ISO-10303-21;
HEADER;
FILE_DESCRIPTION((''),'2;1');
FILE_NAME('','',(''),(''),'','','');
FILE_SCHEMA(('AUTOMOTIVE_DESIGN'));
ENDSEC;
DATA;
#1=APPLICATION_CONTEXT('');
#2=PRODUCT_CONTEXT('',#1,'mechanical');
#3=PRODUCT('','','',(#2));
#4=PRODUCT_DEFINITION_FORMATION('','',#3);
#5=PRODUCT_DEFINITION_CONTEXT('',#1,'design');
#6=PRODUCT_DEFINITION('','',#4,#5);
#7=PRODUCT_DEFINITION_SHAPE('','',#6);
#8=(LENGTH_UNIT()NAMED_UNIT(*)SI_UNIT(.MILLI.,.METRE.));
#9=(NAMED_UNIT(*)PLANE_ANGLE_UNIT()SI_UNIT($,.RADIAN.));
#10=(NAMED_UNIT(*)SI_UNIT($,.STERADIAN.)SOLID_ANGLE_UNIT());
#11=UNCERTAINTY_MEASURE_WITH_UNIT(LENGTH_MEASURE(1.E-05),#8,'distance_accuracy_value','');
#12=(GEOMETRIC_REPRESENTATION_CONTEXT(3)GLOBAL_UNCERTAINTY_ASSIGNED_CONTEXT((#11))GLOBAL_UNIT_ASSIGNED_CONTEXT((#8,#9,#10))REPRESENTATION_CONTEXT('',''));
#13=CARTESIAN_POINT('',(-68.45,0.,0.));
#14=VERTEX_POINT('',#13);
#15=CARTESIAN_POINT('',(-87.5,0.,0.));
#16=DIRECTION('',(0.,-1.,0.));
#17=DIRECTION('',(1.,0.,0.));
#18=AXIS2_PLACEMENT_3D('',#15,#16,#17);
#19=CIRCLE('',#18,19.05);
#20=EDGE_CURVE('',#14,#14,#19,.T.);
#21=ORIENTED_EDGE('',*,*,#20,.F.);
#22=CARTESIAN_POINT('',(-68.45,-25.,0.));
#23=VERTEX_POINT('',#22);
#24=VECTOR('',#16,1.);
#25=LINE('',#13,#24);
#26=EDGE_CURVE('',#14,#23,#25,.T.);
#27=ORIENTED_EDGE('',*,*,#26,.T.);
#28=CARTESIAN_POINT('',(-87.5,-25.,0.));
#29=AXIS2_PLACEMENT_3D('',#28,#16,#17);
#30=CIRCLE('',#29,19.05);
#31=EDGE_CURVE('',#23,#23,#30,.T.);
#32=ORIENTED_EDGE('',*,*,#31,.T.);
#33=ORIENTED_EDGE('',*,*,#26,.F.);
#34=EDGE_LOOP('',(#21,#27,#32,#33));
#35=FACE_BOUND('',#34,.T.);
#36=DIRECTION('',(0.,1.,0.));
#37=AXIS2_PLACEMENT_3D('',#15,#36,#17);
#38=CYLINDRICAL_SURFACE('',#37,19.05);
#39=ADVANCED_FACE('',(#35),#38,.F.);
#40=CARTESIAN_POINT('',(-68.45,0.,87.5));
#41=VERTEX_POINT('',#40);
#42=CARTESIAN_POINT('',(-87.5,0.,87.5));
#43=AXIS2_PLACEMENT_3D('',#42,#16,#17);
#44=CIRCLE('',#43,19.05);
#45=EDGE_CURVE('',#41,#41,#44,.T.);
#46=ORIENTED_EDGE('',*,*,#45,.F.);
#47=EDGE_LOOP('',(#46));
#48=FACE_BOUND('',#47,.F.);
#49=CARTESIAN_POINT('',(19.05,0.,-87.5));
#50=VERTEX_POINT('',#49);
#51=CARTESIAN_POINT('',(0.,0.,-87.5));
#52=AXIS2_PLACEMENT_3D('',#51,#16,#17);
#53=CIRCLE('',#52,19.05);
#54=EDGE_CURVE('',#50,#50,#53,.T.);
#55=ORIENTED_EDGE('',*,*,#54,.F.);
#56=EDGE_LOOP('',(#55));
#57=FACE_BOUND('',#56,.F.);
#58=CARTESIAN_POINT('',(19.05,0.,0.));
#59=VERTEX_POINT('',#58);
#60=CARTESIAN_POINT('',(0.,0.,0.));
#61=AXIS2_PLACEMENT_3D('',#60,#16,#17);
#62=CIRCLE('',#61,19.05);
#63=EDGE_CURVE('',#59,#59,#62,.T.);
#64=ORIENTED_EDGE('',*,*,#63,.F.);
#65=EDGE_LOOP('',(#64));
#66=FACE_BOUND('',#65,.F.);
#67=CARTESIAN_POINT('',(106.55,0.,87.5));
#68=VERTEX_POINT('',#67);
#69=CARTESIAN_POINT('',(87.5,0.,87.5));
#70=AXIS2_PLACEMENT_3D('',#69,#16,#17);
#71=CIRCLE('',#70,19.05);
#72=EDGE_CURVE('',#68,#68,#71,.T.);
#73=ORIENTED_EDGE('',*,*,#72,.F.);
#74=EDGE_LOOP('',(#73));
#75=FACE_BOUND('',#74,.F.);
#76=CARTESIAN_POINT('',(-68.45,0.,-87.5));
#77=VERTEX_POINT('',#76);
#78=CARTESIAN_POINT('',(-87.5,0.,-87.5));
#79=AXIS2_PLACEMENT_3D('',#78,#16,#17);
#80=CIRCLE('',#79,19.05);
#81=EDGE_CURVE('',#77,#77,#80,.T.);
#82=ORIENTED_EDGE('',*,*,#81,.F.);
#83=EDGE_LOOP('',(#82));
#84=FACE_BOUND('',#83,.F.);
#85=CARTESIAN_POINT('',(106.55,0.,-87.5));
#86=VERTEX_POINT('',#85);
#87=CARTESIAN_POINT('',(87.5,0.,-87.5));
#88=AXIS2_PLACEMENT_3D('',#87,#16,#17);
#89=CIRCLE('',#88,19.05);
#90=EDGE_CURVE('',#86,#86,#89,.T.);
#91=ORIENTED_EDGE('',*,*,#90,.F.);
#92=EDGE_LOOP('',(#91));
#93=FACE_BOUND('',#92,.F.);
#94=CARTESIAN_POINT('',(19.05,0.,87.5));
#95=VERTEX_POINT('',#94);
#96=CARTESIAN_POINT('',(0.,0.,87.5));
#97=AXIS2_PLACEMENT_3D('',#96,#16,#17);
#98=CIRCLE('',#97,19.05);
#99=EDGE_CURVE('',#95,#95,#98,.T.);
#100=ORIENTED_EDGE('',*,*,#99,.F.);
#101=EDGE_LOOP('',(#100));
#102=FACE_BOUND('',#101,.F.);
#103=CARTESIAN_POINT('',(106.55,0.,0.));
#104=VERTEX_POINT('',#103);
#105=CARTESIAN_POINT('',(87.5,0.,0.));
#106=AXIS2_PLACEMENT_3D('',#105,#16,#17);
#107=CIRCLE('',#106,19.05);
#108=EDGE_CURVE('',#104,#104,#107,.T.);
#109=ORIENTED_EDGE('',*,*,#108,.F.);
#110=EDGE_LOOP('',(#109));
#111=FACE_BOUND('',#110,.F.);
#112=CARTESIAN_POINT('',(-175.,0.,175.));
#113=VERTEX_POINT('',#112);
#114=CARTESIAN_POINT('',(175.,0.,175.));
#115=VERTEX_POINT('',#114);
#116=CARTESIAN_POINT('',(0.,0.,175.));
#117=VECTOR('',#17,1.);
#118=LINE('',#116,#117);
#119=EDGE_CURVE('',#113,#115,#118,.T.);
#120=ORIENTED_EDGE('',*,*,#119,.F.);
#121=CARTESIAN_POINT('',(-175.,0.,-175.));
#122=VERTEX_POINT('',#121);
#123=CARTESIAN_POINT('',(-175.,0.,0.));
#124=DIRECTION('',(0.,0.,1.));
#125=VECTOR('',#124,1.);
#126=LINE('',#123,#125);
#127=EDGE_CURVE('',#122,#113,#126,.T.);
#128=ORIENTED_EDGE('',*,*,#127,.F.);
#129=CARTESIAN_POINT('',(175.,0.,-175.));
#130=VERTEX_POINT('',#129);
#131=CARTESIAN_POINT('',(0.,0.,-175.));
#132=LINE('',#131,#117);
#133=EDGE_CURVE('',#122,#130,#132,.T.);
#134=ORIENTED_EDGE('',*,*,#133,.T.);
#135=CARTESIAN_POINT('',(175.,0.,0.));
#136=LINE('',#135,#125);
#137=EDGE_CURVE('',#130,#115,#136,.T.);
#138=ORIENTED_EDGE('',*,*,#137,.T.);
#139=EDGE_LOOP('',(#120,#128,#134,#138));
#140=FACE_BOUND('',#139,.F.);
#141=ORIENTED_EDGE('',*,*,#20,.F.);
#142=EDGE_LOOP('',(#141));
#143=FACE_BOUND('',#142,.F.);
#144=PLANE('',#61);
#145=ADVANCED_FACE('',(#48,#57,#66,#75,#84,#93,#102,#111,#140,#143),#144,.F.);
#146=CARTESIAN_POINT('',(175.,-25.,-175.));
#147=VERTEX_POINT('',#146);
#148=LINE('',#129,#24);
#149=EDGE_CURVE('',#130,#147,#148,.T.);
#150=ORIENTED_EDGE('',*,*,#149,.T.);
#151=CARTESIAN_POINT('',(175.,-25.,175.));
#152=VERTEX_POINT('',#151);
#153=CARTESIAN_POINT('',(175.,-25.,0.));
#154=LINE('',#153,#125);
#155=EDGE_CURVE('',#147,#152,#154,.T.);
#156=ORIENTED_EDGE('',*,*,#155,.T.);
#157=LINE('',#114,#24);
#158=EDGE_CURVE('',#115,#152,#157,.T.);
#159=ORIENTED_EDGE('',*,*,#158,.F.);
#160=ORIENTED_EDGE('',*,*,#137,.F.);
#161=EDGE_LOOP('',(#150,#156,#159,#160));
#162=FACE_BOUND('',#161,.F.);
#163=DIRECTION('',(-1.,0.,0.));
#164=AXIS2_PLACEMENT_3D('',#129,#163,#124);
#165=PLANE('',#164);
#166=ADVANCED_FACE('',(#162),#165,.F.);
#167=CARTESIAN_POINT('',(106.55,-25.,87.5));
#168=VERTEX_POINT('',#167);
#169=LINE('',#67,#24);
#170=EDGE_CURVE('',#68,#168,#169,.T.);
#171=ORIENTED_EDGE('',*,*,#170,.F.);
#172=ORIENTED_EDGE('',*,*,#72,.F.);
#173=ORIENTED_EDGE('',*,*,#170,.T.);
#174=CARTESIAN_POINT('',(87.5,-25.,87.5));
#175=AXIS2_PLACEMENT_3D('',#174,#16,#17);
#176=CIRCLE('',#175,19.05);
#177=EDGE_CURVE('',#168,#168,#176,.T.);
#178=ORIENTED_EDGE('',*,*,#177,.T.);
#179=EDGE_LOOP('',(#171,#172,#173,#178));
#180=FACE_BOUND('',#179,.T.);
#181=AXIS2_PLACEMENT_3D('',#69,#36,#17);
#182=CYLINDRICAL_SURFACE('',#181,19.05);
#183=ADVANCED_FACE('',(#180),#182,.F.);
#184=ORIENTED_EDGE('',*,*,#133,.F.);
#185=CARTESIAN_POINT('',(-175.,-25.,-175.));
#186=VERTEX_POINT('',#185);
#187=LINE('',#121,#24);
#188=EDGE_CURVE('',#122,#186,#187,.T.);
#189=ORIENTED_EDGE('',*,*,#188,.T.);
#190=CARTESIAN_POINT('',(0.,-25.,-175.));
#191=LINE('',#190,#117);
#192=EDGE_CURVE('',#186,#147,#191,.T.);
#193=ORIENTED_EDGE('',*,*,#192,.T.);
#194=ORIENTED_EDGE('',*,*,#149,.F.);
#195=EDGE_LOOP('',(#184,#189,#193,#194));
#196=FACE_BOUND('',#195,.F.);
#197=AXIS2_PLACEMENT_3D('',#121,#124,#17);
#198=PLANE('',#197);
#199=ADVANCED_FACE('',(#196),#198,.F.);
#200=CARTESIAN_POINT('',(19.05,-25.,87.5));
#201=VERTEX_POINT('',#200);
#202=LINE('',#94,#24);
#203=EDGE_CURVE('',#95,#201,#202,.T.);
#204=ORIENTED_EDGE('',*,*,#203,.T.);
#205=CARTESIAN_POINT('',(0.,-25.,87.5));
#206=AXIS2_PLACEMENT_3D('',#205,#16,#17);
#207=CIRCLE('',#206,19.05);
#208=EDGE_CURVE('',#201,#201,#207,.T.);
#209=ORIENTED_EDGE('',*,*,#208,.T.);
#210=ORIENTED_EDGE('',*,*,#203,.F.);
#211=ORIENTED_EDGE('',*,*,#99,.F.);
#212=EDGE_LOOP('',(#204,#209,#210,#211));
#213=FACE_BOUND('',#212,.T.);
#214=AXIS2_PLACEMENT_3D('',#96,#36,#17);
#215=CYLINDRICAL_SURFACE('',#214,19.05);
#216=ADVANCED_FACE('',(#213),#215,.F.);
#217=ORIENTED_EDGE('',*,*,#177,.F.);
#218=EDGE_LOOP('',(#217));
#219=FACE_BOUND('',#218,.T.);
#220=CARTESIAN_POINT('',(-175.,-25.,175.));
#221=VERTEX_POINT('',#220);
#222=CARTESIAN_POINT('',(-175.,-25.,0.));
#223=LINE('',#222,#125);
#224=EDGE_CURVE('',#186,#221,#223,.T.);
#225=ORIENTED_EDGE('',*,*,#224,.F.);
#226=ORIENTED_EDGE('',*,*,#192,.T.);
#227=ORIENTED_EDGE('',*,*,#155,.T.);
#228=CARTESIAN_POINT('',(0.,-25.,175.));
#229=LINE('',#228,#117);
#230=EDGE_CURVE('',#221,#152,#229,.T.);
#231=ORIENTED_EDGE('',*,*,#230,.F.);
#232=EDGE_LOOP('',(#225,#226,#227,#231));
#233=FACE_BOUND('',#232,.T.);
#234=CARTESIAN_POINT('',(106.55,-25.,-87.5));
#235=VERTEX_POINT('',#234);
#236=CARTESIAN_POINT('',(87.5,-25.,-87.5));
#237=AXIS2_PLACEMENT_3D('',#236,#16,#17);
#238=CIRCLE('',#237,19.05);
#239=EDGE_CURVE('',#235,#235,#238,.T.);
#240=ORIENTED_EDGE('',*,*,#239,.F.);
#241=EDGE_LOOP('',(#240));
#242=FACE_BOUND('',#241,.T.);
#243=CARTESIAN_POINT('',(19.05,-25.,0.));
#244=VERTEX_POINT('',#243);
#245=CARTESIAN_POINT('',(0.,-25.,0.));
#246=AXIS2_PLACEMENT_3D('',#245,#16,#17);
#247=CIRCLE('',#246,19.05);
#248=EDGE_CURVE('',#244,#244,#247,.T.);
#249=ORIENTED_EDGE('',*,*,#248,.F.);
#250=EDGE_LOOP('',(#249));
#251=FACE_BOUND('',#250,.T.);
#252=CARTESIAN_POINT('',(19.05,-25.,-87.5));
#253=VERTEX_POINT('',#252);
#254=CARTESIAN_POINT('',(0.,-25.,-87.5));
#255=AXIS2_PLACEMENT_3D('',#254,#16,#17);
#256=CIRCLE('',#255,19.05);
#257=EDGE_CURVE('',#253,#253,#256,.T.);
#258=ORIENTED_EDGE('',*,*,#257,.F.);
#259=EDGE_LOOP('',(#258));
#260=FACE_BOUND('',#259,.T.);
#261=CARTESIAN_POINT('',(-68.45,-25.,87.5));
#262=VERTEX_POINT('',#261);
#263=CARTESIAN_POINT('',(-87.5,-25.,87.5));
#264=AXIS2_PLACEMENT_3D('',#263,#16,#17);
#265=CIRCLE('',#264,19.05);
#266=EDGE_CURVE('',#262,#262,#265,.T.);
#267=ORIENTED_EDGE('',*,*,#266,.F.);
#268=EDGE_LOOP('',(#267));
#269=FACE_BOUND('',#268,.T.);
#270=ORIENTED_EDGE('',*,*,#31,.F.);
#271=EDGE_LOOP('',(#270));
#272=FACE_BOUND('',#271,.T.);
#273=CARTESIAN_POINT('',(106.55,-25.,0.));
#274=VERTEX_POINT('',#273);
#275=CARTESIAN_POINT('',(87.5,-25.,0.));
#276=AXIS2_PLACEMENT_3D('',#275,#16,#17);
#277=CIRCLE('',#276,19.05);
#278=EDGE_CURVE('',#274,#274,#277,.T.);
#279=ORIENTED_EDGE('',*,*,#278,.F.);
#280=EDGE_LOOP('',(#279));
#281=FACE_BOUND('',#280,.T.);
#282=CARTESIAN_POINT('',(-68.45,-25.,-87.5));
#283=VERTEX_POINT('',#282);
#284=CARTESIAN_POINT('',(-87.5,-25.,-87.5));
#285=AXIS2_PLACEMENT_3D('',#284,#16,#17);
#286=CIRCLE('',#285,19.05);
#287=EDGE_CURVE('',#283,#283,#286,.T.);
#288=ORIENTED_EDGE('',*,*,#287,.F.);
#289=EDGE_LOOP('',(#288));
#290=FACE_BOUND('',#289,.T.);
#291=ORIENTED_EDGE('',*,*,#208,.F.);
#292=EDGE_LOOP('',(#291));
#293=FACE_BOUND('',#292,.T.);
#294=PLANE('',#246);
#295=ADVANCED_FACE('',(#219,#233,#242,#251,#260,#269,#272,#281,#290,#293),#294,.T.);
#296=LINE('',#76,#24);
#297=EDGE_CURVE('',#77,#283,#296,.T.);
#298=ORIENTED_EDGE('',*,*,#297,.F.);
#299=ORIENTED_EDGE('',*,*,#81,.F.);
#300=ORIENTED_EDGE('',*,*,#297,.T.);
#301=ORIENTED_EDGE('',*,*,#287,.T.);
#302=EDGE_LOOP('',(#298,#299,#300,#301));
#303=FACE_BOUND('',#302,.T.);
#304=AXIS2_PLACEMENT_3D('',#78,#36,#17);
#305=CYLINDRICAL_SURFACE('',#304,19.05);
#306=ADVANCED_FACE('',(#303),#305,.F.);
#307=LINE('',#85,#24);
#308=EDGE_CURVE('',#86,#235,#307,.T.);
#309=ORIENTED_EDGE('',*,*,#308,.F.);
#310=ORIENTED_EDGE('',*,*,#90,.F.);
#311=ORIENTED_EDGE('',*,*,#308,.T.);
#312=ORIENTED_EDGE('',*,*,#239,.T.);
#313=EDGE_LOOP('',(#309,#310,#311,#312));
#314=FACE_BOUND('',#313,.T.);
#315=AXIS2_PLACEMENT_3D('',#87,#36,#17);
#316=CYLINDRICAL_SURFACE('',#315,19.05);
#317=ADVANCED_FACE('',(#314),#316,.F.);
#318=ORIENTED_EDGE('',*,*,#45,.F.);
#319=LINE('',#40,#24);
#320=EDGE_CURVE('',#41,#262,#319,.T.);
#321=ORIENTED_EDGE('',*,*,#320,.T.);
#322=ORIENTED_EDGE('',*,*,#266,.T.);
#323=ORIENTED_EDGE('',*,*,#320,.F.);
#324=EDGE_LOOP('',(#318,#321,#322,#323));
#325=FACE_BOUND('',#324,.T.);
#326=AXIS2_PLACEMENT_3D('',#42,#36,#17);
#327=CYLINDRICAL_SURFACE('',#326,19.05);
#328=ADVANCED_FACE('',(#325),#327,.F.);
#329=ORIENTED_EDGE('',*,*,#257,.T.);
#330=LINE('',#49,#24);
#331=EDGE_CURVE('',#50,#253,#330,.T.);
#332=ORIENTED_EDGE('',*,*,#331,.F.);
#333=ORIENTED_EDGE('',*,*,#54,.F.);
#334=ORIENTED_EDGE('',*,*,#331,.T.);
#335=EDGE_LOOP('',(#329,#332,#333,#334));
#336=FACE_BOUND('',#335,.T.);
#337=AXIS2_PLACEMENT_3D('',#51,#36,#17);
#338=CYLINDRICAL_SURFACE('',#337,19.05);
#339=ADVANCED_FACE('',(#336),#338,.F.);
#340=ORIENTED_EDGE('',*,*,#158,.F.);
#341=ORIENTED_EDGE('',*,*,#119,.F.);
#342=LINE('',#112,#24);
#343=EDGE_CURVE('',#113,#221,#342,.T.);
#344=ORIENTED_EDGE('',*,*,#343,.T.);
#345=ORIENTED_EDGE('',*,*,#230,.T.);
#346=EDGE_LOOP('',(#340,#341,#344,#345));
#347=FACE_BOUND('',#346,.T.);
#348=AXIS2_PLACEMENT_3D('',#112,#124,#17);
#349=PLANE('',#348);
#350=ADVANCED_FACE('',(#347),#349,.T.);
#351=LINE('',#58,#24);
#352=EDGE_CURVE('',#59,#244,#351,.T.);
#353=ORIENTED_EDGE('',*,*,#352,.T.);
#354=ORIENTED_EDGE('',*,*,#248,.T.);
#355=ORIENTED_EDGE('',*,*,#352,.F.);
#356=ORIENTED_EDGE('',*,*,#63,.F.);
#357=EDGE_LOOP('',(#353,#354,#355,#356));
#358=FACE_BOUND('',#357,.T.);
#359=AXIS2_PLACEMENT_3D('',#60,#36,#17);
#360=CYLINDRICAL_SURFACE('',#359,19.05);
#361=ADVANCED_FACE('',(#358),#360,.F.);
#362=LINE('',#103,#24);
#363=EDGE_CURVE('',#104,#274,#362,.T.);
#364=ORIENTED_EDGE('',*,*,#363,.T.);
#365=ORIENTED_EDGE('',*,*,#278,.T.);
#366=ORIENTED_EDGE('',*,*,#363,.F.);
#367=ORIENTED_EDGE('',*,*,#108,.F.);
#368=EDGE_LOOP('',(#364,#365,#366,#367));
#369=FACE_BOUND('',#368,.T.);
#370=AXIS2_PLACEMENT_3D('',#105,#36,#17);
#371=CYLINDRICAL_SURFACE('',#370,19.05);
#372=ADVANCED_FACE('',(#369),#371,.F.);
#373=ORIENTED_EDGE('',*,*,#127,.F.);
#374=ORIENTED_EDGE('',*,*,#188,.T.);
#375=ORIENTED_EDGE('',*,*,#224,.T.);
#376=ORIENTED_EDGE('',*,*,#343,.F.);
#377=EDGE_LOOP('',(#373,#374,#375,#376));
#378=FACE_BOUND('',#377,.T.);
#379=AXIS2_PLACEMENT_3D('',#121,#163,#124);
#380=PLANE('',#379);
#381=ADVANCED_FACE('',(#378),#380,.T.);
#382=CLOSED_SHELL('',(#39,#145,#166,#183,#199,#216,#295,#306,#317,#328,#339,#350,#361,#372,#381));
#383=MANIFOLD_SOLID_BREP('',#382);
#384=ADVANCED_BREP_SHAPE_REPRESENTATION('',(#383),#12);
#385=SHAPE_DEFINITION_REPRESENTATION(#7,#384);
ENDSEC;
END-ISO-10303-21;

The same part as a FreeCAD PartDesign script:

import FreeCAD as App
import Part
import Sketcher
from FreeCAD import Vector

doc = App.newDocument("Part")
body = doc.addObject("PartDesign::Body", "Body")

# Sketch on XZ plane
sketch1 = body.newObject("Sketcher::SketchObject", "Sketch")
sketch1.AttachmentSupport = (doc.getObject("XZ_Plane"), [""])
sketch1.MapMode = "FlatFace"
sketch1.addGeometry([
    Part.LineSegment(Vector(-175, 175, 0), Vector(-175, -175, 0)),  # 0
    Part.LineSegment(Vector(-175, -175, 0), Vector(175, -175, 0)),  # 1
    Part.LineSegment(Vector(175, -175, 0), Vector(175, 175, 0)),  # 2
    Part.LineSegment(Vector(175, 175, 0), Vector(-175, 175, 0)),  # 3
    Part.Circle(Vector(-88, -88, 0), Vector(0, 0, 1), 19),  # 4
    Part.Circle(Vector(0, -88, 0), Vector(0, 0, 1), 19),  # 5
    Part.Circle(Vector(88, -88, 0), Vector(0, 0, 1), 19),  # 6
    Part.Circle(Vector(-88, 0, 0), Vector(0, 0, 1), 19),  # 7
    Part.Circle(Vector(-88, 88, 0), Vector(0, 0, 1), 19),  # 8
    Part.Circle(Vector(0, 0, 0), Vector(0, 0, 1), 19),  # 9
    Part.Circle(Vector(88, 0, 0), Vector(0, 0, 1), 19),  # 10
    Part.Circle(Vector(0, 88, 0), Vector(0, 0, 1), 19),  # 11
    Part.Circle(Vector(88, 88, 0), Vector(0, 0, 1), 19),  # 12
], False)
sketch1.addConstraint([
    Sketcher.Constraint("Coincident", 0, 2, 1, 1),
    Sketcher.Constraint("Coincident", 1, 2, 2, 1),
    Sketcher.Constraint("Coincident", 2, 2, 3, 1),
    Sketcher.Constraint("Coincident", 3, 2, 0, 1),
    Sketcher.Constraint("Vertical", 0),
    Sketcher.Constraint("Horizontal", 1),
    Sketcher.Constraint("Vertical", 2),
    Sketcher.Constraint("Horizontal", 3),
    Sketcher.Constraint("Coincident", 9, 3, -1, 1),
    Sketcher.Constraint("Equal", 4, 5),
    Sketcher.Constraint("Equal", 5, 6),
    Sketcher.Constraint("Equal", 6, 7),
    Sketcher.Constraint("Equal", 7, 8),
    Sketcher.Constraint("Equal", 8, 9),
    Sketcher.Constraint("Equal", 9, 10),
    Sketcher.Constraint("Equal", 10, 11),
    Sketcher.Constraint("Equal", 11, 12),
    Sketcher.Constraint("Symmetric", 6, 3, 8, 3, -1, 1),
    Sketcher.Constraint("Symmetric", 7, 3, 10, 3, -1, 1),
    Sketcher.Constraint("Symmetric", 5, 3, 11, 3, -1, 1),
    Sketcher.Constraint("Symmetric", 4, 3, 12, 3, -1, 1),
    Sketcher.Constraint("Symmetric", 0, 2, 2, 2, -1, 1),
    Sketcher.Constraint("Symmetric", 4, 3, 6, 3, -2),
    Sketcher.Constraint("PointOnObject", 5, 3, -2),
    Sketcher.Constraint("PointOnObject", 7, 3, -1),
    Sketcher.Constraint("Horizontal", 4, 3, 5, 3),
    Sketcher.Constraint("Vertical", 4, 3, 7, 3),
    Sketcher.Constraint("Equal", 3, 0),
    Sketcher.Constraint("Diameter", 4, 38.1),
    Sketcher.Constraint("DistanceX", 1, 1, 1, 2, 350.0),
    Sketcher.Constraint("DistanceX", 4, 3, 6, 3, 175.0),
    Sketcher.Constraint("DistanceY", 4, 3, 8, 3, 175.0),
])
pad1 = body.newObject("PartDesign::Pad", "Pad")
pad1.Profile = sketch1
pad1.Length = 25

doc.recompute()
